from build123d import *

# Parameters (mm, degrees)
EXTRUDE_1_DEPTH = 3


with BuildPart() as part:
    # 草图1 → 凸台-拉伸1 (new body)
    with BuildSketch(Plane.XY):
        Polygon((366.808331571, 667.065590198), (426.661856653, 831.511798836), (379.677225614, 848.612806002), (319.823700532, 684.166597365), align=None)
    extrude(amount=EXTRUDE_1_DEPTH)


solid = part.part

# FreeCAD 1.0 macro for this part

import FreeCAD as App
import Part
import Sketcher
Q = App.Units.Quantity


def add_polygon(sketch, points):
    """Adds a closed chain of lines whose ends are joined by coincident constraints."""
    first, n = sketch.GeometryCount, len(points)
    for a, b in zip(points, points[1:] + points[:1]):
        sketch.addGeometry(Part.LineSegment(App.Vector(*a, 0), App.Vector(*b, 0)), False)
    for i in range(n):
        sketch.addConstraint(Sketcher.Constraint("Coincident", first + i, 2, first + (i + 1) % n, 1))

doc = App.newDocument("Part")
params = doc.addObject("Spreadsheet::Sheet", "Params")
for row, (alias, value) in enumerate([
    ("sketch1_length", "175 mm"),
    ("sketch1_length2", "50 mm"),
    ("pad1_length", "3 mm"),
], start=1):
    params.set(f"A{row}", alias)
    params.set(f"B{row}", "=" + value)
    params.setAlias(f"B{row}", alias)

body = doc.addObject("PartDesign::Body", "Body")

sketch1 = doc.addObject("Sketcher::SketchObject", "Sketch")
body.addObject(sketch1)
sketch1.AttachmentSupport = (doc.XY_Plane, [""])
sketch1.MapMode = "FlatFace"
add_polygon(sketch1, [(367, 667), (427, 832), (380, 849), (320, 684)])
sketch1.addConstraint([
    Sketcher.Constraint("Perpendicular", 0, 1),
    Sketcher.Constraint("Perpendicular", 1, 2),
    Sketcher.Constraint("Perpendicular", 2, 3),
    Sketcher.Constraint("Angle", 0, Q("70 deg")),
    Sketcher.Constraint("Distance", 0, 175.0),
    Sketcher.Constraint("Distance", 1, 50.0),
    Sketcher.Constraint("DistanceY", -1, 1, 0, 2, 831.511799),
    Sketcher.Constraint("DistanceX", -1, 1, 2, 2, 319.823701),
])
sketch1.setExpression("Constraints[8]", "Params.sketch1_length")
sketch1.setExpression("Constraints[9]", "Params.sketch1_length2")
pad1 = doc.addObject("PartDesign::Pad", "Pad")
body.addObject(pad1)
pad1.Profile = sketch1
pad1.setExpression("Length", "Params.pad1_length")

doc.recompute()
